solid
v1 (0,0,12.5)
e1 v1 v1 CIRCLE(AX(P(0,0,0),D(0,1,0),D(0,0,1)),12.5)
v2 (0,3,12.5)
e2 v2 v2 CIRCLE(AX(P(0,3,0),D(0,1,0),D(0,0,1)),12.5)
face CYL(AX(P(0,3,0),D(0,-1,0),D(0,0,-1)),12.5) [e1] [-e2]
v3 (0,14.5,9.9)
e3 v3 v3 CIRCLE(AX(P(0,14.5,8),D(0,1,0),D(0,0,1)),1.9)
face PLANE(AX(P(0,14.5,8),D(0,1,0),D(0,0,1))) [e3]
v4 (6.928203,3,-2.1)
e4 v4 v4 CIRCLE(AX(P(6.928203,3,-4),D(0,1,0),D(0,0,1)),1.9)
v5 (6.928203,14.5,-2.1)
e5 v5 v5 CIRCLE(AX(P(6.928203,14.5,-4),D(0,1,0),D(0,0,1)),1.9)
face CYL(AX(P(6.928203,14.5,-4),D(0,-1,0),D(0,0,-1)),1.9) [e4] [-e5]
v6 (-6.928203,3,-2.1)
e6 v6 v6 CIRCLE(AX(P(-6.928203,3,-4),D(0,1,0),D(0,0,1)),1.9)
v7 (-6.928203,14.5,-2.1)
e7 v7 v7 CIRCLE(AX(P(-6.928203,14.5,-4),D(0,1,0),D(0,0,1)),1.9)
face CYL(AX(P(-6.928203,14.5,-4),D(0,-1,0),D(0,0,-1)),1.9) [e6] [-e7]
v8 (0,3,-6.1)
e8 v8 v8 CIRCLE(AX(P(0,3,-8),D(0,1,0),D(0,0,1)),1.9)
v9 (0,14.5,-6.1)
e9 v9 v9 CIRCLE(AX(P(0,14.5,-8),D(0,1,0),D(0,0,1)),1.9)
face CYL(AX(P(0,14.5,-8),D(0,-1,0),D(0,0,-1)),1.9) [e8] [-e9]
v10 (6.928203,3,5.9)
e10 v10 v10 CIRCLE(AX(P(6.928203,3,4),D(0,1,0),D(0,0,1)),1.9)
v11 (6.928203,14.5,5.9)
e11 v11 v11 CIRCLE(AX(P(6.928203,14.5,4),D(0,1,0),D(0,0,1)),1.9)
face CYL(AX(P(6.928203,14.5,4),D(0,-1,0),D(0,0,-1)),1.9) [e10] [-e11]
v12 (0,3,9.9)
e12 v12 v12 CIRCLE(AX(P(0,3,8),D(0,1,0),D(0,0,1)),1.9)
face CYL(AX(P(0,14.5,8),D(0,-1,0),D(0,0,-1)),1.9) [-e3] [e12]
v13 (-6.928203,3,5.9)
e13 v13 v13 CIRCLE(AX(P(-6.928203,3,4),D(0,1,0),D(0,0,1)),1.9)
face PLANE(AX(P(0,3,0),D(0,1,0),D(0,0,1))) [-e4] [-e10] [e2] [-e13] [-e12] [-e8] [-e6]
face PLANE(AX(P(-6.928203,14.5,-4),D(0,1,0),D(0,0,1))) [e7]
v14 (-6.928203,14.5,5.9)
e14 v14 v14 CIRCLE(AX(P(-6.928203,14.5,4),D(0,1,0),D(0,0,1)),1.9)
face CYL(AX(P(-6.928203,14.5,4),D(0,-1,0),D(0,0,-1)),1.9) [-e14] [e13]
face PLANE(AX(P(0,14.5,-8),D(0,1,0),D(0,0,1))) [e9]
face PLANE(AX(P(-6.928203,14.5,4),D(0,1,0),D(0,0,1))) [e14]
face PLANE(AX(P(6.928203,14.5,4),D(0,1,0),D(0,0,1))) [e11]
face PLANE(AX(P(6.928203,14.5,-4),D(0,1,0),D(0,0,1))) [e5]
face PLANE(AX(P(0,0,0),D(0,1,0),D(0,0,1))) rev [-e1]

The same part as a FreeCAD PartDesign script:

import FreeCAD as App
import Part
import Sketcher

V = App.Vector
Q = App.Units.Quantity

doc = App.newDocument("Part")
body = doc.addObject("PartDesign::Body", "Body")

# Sketch on XZ plane
sketch1 = body.newObject("Sketcher::SketchObject", "Sketch")
sketch1.AttachmentSupport = (doc.getObject("XZ_Plane"), [""])
sketch1.MapMode = "FlatFace"
sketch1.addGeometry(Part.Circle(V(0, 0, 0), V(0, 0, 1), 12.5), False)
sketch1.addConstraint([
    Sketcher.Constraint("Coincident", 0, 3, -1, 1),
    Sketcher.Constraint("Diameter", 0, Q("25 mm")),
])
pad1 = body.newObject("PartDesign::Pad", "Pad")
pad1.Profile = sketch1
pad1.Length = 3
pad1.Reversed = True

# Sketch on XZ plane
sketch2 = body.newObject("Sketcher::SketchObject", "Sketch001")
sketch2.AttachmentSupport = (doc.getObject("XZ_Plane"), [""])
sketch2.MapMode = "FlatFace"
sketch2.AttachmentOffset = App.Placement(V(0, 0, -3), App.Rotation())
sketch2.addGeometry([
    Part.Circle(V(0, -8, 0), V(0, 0, 1), 1.9),  # 0
    Part.Circle(V(6.928203, -4, 0), V(0, 0, 1), 1.9),  # 1
    Part.Circle(V(6.928203, 4, 0), V(0, 0, 1), 1.9),  # 2
    Part.Circle(V(0, 8, 0), V(0, 0, 1), 1.9),  # 3
    Part.Circle(V(-6.928203, 4, 0), V(0, 0, 1), 1.9),  # 4
    Part.Circle(V(-6.928203, -4, 0), V(0, 0, 1), 1.9),  # 5
], False)
sketch2.addConstraint([
    Sketcher.Constraint("Equal", 0, 1),
    Sketcher.Constraint("Equal", 1, 2),
    Sketcher.Constraint("Equal", 2, 3),
    Sketcher.Constraint("Equal", 3, 4),
    Sketcher.Constraint("Equal", 4, 5),
    Sketcher.Constraint("Symmetric", 0, 3, 3, 3, -1, 1),
    Sketcher.Constraint("Symmetric", 1, 3, 4, 3, -1, 1),
    Sketcher.Constraint("Symmetric", 2, 3, 5, 3, -1, 1),
    Sketcher.Constraint("Symmetric", 2, 3, 4, 3, -2),
    Sketcher.Constraint("PointOnObject", 0, 3, -2),
    Sketcher.Constraint("Diameter", 0, Q("3.8 mm")),
    Sketcher.Constraint("DistanceY", 0, 3, -1, 1, Q("8 mm")),
    Sketcher.Constraint("DistanceY", 1, 3, -1, 1, Q("4 mm")),
    Sketcher.Constraint("DistanceX", -1, 1, 1, 3, Q("6.928203 mm")),
])
pad2 = body.newObject("PartDesign::Pad", "Pad001")
pad2.Profile = sketch2
pad2.Length = 11.5
pad2.Reversed = True

doc.recompute()
